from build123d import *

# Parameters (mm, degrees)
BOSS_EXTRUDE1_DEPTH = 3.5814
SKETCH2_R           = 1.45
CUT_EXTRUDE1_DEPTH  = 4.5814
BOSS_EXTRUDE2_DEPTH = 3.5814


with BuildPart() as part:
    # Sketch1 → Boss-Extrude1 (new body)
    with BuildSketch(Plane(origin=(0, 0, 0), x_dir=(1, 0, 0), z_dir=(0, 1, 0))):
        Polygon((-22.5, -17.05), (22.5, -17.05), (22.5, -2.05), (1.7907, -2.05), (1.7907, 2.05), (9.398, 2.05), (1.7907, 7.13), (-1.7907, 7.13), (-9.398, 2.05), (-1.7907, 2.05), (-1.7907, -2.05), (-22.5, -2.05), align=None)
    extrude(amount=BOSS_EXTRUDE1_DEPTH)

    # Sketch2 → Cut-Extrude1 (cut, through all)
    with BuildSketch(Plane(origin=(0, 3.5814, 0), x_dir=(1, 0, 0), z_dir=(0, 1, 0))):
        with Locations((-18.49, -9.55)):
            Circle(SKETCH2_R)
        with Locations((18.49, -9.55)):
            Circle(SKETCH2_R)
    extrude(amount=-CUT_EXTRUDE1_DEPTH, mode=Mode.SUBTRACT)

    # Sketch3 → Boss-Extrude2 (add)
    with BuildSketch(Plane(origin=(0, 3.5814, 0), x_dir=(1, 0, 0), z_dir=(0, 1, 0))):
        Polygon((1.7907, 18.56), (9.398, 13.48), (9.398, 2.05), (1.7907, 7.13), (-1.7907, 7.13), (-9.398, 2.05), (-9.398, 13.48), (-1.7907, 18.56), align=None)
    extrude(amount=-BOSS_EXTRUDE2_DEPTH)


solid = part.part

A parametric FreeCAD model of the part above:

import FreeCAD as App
import Part
import Sketcher
from FreeCAD import Vector
Q = App.Units.Quantity


def add_polygon(sketch, points):
    """Adds a closed chain of lines whose ends are joined by coincident constraints."""
    first, n = sketch.GeometryCount, len(points)
    for a, b in zip(points, points[1:] + points[:1]):
        sketch.addGeometry(Part.LineSegment(App.Vector(*a, 0), App.Vector(*b, 0)), False)
    for i in range(n):
        sketch.addConstraint(Sketcher.Constraint("Coincident", first + i, 2, first + (i + 1) % n, 1))

doc = App.newDocument("Part")
body = doc.addObject("PartDesign::Body", "Body")

# Sketch on XZ plane
sketch1 = body.newObject("Sketcher::SketchObject", "Sketch")
sketch1.AttachmentSupport = (doc.getObject("XZ_Plane"), [""])
sketch1.MapMode = "FlatFace"
add_polygon(sketch1, [(-22.5, 17.05), (22.5, 17.05), (22.5, 2.05), (1.7907, 2.05), (1.7907, -2.05), (9.398, -2.05), (1.7907, -7.13), (-1.7907, -7.13), (-9.398, -2.05), (-1.7907, -2.05), (-1.7907, 2.05), (-22.5, 2.05)])  # lines 0-11
sketch1.addConstraint([
    Sketcher.Constraint("Horizontal", 0),
    Sketcher.Constraint("Vertical", 1),
    Sketcher.Constraint("Horizontal", 2),
    Sketcher.Constraint("Vertical", 3),
    Sketcher.Constraint("Horizontal", 4),
    Sketcher.Constraint("Horizontal", 6),
    Sketcher.Constraint("Horizontal", 8),
    Sketcher.Constraint("Vertical", 9),
    Sketcher.Constraint("Horizontal", 10),
    Sketcher.Constraint("Vertical", 11),
    Sketcher.Constraint("Symmetric", 2, 2, 8, 2, -1, 1),
    Sketcher.Constraint("Symmetric", 4, 2, 7, 2, -2),
    Sketcher.Constraint("Symmetric", 1, 2, 10, 2, -2),
    Sketcher.Constraint("Vertical", 3, 2, 5, 2),
    Sketcher.Constraint("Vertical", 6, 2, 8, 2),
    Sketcher.Constraint("DistanceX", 0, 1, 0, 2, Q("45 mm")),
    Sketcher.Constraint("DistanceY", 1, 2, 1, 1, Q("15 mm")),
    Sketcher.Constraint("DistanceY", 3, 2, 3, 1, Q("4.1 mm")),
    Sketcher.Constraint("DistanceY", 5, 2, -1, 1, Q("7.13 mm")),
    Sketcher.Constraint("DistanceX", 2, 2, 2, 1, Q("20.7093 mm")),
    Sketcher.Constraint("DistanceX", 4, 1, 4, 2, Q("7.6073 mm")),
])
pad1 = body.newObject("PartDesign::Pad", "Pad")
pad1.Profile = sketch1
pad1.Length = 3.5814
pad1.Reversed = True

# Sketch on XZ plane
sketch2 = body.newObject("Sketcher::SketchObject", "Sketch001")
sketch2.AttachmentSupport = (doc.getObject("XZ_Plane"), [""])
sketch2.MapMode = "FlatFace"
sketch2.AttachmentOffset = App.Placement(Vector(0, 0, -3.5814), App.Rotation())
sketch2.addGeometry([
    Part.Circle(Vector(-18.49, 9.55, 0), Vector(0, 0, 1), 1.45),
    Part.Circle(Vector(18.49, 9.55, 0), Vector(0, 0, 1), 1.45),
], False)
sketch2.addConstraint([
    Sketcher.Constraint("Equal", 0, 1),
    Sketcher.Constraint("Symmetric", 0, 3, 1, 3, -2),
    Sketcher.Constraint("Diameter", 0, Q("2.9 mm")),
    Sketcher.Constraint("DistanceX", 0, 3, -1, 1, Q("18.49 mm")),
    Sketcher.Constraint("DistanceY", -1, 1, 0, 3, Q("9.55 mm")),
])
pocket1 = body.newObject("PartDesign::Pocket", "Pocket")
pocket1.Profile = sketch2
pocket1.Type = "ThroughAll"
pocket1.Reversed = True

# Sketch on XZ plane
sketch3 = body.newObject("Sketcher::SketchObject", "Sketch002")
sketch3.AttachmentSupport = (doc.getObject("XZ_Plane"), [""])
sketch3.MapMode = "FlatFace"
sketch3.AttachmentOffset = App.Placement(Vector(0, 0, -3.5814), App.Rotation())
add_polygon(sketch3, [(9.398, -13.48), (1.7907, -18.56), (-1.7907, -18.56), (-9.398, -13.48), (-9.398, -2.05), (-1.7907, -7.13), (1.7907, -7.13), (9.398, -2.05)])  # lines 0-7
sketch3.addConstraint([
    Sketcher.Constraint("Horizontal", 1),
    Sketcher.Constraint("Vertical", 3),
    Sketcher.Constraint("Horizontal", 5),
    Sketcher.Constraint("Vertical", 7),
    Sketcher.Constraint("Symmetric", 3, 2, 6, 2, -2),
    Sketcher.Constraint("Parallel", 2, 4),
    Sketcher.Constraint("Parallel", 0, 6),
    Sketcher.Constraint("Horizontal", 2, 2, 7, 2),
    Sketcher.Constraint("Vertical", 1, 2, 4, 2),
    Sketcher.Constraint("Equal", 0, 2),
    Sketcher.Constraint("DistanceY", 3, 1, 3, 2, Q("11.43 mm")),
    Sketcher.Constraint("DistanceY", 0, 2, -1, 1, Q("18.56 mm")),
    Sketcher.Constraint("DistanceY", 2, 2, -1, 1, Q("13.48 mm")),
    Sketcher.Constraint("DistanceX", 1, 2, 1, 1, Q("3.5814 mm")),
    Sketcher.Constraint("DistanceX", 2, 2, -1, 1, Q("9.398 mm")),
])
pad2 = body.newObject("PartDesign::Pad", "Pad001")
pad2.Profile = sketch3
pad2.Length = 3.5814

doc.recompute()
